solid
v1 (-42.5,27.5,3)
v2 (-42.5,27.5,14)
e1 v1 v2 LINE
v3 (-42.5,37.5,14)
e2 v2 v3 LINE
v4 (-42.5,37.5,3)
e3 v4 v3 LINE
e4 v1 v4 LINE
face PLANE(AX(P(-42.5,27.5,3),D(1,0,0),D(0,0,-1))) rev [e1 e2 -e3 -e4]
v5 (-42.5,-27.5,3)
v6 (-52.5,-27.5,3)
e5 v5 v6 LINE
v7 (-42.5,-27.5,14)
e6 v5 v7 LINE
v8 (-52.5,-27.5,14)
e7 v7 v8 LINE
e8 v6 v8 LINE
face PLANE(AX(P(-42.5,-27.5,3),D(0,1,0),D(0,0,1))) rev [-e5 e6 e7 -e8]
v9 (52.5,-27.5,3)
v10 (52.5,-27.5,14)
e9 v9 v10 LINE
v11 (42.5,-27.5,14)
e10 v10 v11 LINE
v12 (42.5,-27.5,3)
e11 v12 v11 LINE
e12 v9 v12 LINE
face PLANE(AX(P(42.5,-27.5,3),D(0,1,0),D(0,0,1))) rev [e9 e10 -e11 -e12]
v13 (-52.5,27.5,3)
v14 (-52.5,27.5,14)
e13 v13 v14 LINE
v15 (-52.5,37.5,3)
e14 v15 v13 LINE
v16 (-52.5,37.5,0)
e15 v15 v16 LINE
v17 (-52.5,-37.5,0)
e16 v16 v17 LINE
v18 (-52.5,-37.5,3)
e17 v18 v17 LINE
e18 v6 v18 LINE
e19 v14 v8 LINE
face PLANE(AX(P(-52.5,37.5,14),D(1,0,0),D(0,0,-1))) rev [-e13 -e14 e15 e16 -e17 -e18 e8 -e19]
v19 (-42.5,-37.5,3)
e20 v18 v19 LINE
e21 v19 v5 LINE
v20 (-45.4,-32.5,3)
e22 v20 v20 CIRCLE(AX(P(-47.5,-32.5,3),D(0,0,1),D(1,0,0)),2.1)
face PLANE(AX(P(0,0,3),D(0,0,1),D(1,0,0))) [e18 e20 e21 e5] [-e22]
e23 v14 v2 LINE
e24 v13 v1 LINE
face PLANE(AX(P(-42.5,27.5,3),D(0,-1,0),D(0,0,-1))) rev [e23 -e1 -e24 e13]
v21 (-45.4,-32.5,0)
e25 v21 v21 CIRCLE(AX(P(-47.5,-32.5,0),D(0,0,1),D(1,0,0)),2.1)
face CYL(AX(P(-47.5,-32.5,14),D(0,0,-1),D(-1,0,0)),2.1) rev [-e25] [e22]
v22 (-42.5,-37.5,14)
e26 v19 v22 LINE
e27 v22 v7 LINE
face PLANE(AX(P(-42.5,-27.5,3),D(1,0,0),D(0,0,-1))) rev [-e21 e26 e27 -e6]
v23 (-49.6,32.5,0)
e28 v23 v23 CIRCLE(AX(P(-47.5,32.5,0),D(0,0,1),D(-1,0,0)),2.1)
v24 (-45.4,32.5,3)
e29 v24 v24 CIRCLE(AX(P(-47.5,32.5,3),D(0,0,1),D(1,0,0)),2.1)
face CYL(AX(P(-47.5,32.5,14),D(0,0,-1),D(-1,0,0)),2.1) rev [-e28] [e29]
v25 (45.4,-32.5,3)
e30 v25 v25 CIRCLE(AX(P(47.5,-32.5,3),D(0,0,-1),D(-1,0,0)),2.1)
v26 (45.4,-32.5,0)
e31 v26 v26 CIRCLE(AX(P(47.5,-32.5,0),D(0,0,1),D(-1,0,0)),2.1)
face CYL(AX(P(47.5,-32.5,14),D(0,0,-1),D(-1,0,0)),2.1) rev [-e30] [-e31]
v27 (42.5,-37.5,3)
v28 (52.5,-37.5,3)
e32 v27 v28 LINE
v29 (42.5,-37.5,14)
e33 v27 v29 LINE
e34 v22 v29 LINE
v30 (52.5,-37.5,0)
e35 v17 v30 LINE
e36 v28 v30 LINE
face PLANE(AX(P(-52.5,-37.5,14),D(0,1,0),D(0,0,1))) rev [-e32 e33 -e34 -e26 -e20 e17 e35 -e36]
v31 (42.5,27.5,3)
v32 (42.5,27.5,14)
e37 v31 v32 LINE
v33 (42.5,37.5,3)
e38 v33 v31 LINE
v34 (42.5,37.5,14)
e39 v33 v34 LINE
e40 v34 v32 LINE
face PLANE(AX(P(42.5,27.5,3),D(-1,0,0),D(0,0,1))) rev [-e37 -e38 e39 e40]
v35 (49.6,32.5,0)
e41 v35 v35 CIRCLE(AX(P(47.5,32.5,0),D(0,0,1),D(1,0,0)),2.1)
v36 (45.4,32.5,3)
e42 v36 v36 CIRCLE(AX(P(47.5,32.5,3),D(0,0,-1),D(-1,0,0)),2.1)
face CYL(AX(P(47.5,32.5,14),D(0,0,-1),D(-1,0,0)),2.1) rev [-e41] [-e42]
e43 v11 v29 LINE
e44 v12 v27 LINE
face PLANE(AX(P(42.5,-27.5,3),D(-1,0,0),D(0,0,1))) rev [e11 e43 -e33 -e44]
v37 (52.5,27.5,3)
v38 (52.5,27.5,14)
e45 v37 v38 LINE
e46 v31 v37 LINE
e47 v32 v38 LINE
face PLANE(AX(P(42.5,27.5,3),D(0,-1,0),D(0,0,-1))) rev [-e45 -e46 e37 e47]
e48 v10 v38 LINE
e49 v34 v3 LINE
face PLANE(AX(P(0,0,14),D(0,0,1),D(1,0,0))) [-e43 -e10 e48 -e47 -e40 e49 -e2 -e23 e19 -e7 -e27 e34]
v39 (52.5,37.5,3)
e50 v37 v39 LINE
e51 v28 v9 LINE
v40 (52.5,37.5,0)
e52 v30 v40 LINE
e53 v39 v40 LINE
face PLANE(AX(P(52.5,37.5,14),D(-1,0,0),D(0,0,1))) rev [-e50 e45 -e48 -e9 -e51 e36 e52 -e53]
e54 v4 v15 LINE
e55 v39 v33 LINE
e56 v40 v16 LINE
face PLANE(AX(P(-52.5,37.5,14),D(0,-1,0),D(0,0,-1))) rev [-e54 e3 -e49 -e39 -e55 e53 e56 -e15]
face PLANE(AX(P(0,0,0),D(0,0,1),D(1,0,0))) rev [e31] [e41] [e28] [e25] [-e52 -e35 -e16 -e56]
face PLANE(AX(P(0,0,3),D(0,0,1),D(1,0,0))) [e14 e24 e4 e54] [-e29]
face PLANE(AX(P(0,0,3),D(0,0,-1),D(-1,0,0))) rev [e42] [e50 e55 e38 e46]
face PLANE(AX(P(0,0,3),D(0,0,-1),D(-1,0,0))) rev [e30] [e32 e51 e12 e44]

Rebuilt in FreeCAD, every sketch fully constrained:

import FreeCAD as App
import Part
import Sketcher

V = App.Vector
Q = App.Units.Quantity

doc = App.newDocument("Part")
body = doc.addObject("PartDesign::Body", "Body")

# Sketch on XY plane
sketch1 = body.newObject("Sketcher::SketchObject", "Sketch")
sketch1.AttachmentSupport = (doc.getObject("XY_Plane"), [""])
sketch1.MapMode = "FlatFace"
sketch1.addGeometry(Part.LineSegment(V(-52.5, 37.5, 0), V(-52.5, -37.5, 0)), False)
sketch1.addGeometry(Part.LineSegment(V(-52.5, -37.5, 0), V(52.5, -37.5, 0)), False)
sketch1.addGeometry(Part.LineSegment(V(52.5, -37.5, 0), V(52.5, 37.5, 0)), False)
sketch1.addGeometry(Part.LineSegment(V(52.5, 37.5, 0), V(-52.5, 37.5, 0)), False)
sketch1.addGeometry(Part.Circle(V(-47.5, -32.5, 0), V(0, 0, 1), 2.1), False)
sketch1.addGeometry(Part.Circle(V(47.5, -32.5, 0), V(0, 0, 1), 2.1), False)
sketch1.addGeometry(Part.Circle(V(-47.5, 32.5, 0), V(0, 0, 1), 2.1), False)
sketch1.addGeometry(Part.Circle(V(47.5, 32.5, 0), V(0, 0, 1), 2.1), False)
sketch1.addConstraint(Sketcher.Constraint("Coincident", 0, 2, 1, 1))
sketch1.addConstraint(Sketcher.Constraint("Coincident", 1, 2, 2, 1))
sketch1.addConstraint(Sketcher.Constraint("Coincident", 2, 2, 3, 1))
sketch1.addConstraint(Sketcher.Constraint("Coincident", 3, 2, 0, 1))
sketch1.addConstraint(Sketcher.Constraint("Vertical", 0))
sketch1.addConstraint(Sketcher.Constraint("Horizontal", 1))
sketch1.addConstraint(Sketcher.Constraint("Vertical", 2))
sketch1.addConstraint(Sketcher.Constraint("Horizontal", 3))
sketch1.addConstraint(Sketcher.Constraint("Equal", 4, 5))
sketch1.addConstraint(Sketcher.Constraint("Equal", 5, 6))
sketch1.addConstraint(Sketcher.Constraint("Equal", 6, 7))
sketch1.addConstraint(Sketcher.Constraint("Symmetric", 5, 3, 6, 3, -1, 1))
sketch1.addConstraint(Sketcher.Constraint("Symmetric", 4, 3, 7, 3, -1, 1))
sketch1.addConstraint(Sketcher.Constraint("Symmetric", 0, 2, 2, 2, -1, 1))
sketch1.addConstraint(Sketcher.Constraint("Symmetric", 4, 3, 5, 3, -2))
sketch1.addConstraint(Sketcher.Constraint("Diameter", 4, Q("4.2 mm")))
sketch1.addConstraint(Sketcher.Constraint("DistanceX", 1, 1, 1, 2, Q("105 mm")))
sketch1.addConstraint(Sketcher.Constraint("DistanceY", 0, 2, 0, 1, Q("75 mm")))
sketch1.addConstraint(Sketcher.Constraint("DistanceX", 4, 3, 5, 3, Q("95 mm")))
sketch1.addConstraint(Sketcher.Constraint("DistanceY", 4, 3, 6, 3, Q("65 mm")))
pad1 = body.newObject("PartDesign::Pad", "Pad")
pad1.Profile = sketch1
pad1.Length = 14

# Sketch on XY plane
sketch2 = body.newObject("Sketcher::SketchObject", "Sketch001")
sketch2.AttachmentSupport = (doc.getObject("XY_Plane"), [""])
sketch2.MapMode = "FlatFace"
sketch2.AttachmentOffset = App.Placement(V(0, 0, 14), App.Rotation())
sketch2.addGeometry(Part.LineSegment(V(42, 38, 0), V(42, 28, 0)), False)
sketch2.addGeometry(Part.LineSegment(V(42, 28, 0), V(52, 28, 0)), False)
sketch2.addGeometry(Part.LineSegment(V(52, 28, 0), V(52, 38, 0)), False)
sketch2.addGeometry(Part.LineSegment(V(52, 38, 0), V(42, 38, 0)), False)
sketch2.addGeometry(Part.LineSegment(V(-52, 38, 0), V(-52, 28, 0)), False)
sketch2.addGeometry(Part.LineSegment(V(-52, 28, 0), V(-42, 28, 0)), False)
sketch2.addGeometry(Part.LineSegment(V(-42, 28, 0), V(-42, 38, 0)), False)
sketch2.addGeometry(Part.LineSegment(V(-42, 38, 0), V(-52, 38, 0)), False)
sketch2.addGeometry(Part.LineSegment(V(-52, -28, 0), V(-52, -38, 0)), False)
sketch2.addGeometry(Part.LineSegment(V(-52, -38, 0), V(-42, -38, 0)), False)
sketch2.addGeometry(Part.LineSegment(V(-42, -38, 0), V(-42, -28, 0)), False)
sketch2.addGeometry(Part.LineSegment(V(-42, -28, 0), V(-52, -28, 0)), False)
sketch2.addGeometry(Part.LineSegment(V(42, -28, 0), V(42, -38, 0)), False)
sketch2.addGeometry(Part.LineSegment(V(42, -38, 0), V(52, -38, 0)), False)
sketch2.addGeometry(Part.LineSegment(V(52, -38, 0), V(52, -28, 0)), False)
sketch2.addGeometry(Part.LineSegment(V(52, -28, 0), V(42, -28, 0)), False)
sketch2.addConstraint(Sketcher.Constraint("Coincident", 0, 2, 1, 1))
sketch2.addConstraint(Sketcher.Constraint("Coincident", 1, 2, 2, 1))
sketch2.addConstraint(Sketcher.Constraint("Coincident", 2, 2, 3, 1))
sketch2.addConstraint(Sketcher.Constraint("Coincident", 3, 2, 0, 1))
sketch2.addConstraint(Sketcher.Constraint("Coincident", 4, 2, 5, 1))
sketch2.addConstraint(Sketcher.Constraint("Coincident", 5, 2, 6, 1))
sketch2.addConstraint(Sketcher.Constraint("Coincident", 6, 2, 7, 1))
sketch2.addConstraint(Sketcher.Constraint("Coincident", 7, 2, 4, 1))
sketch2.addConstraint(Sketcher.Constraint("Coincident", 8, 2, 9, 1))
sketch2.addConstraint(Sketcher.Constraint("Coincident", 9, 2, 10, 1))
sketch2.addConstraint(Sketcher.Constraint("Coincident", 10, 2, 11, 1))
sketch2.addConstraint(Sketcher.Constraint("Coincident", 11, 2, 8, 1))
sketch2.addConstraint(Sketcher.Constraint("Coincident", 12, 2, 13, 1))
sketch2.addConstraint(Sketcher.Constraint("Coincident", 13, 2, 14, 1))
sketch2.addConstraint(Sketcher.Constraint("Coincident", 14, 2, 15, 1))
sketch2.addConstraint(Sketcher.Constraint("Coincident", 15, 2, 12, 1))
sketch2.addConstraint(Sketcher.Constraint("Vertical", 0))
sketch2.addConstraint(Sketcher.Constraint("Horizontal", 1))
sketch2.addConstraint(Sketcher.Constraint("Vertical", 2))
sketch2.addConstraint(Sketcher.Constraint("Horizontal", 3))
sketch2.addConstraint(Sketcher.Constraint("Vertical", 4))
sketch2.addConstraint(Sketcher.Constraint("Horizontal", 5))
sketch2.addConstraint(Sketcher.Constraint("Vertical", 6))
sketch2.addConstraint(Sketcher.Constraint("Horizontal", 7))
sketch2.addConstraint(Sketcher.Constraint("Vertical", 8))
sketch2.addConstraint(Sketcher.Constraint("Horizontal", 9))
sketch2.addConstraint(Sketcher.Constraint("Vertical", 10))
sketch2.addConstraint(Sketcher.Constraint("Horizontal", 11))
sketch2.addConstraint(Sketcher.Constraint("Vertical", 12))
sketch2.addConstraint(Sketcher.Constraint("Horizontal", 13))
sketch2.addConstraint(Sketcher.Constraint("Vertical", 14))
sketch2.addConstraint(Sketcher.Constraint("Horizontal", 15))
sketch2.addConstraint(Sketcher.Constraint("Symmetric", 2, 2, 8, 2, -1, 1))
sketch2.addConstraint(Sketcher.Constraint("Symmetric", 0, 2, 10, 2, -1, 1))
sketch2.addConstraint(Sketcher.Constraint("Symmetric", 6, 2, 12, 2, -1, 1))
sketch2.addConstraint(Sketcher.Constraint("Symmetric", 4, 2, 14, 2, -1, 1))
sketch2.addConstraint(Sketcher.Constraint("Symmetric", 1, 2, 4, 2, -2))
sketch2.addConstraint(Sketcher.Constraint("Symmetric", 3, 2, 6, 2, -2))
sketch2.addConstraint(Sketcher.Constraint("Equal", 15, 0))
sketch2.addConstraint(Sketcher.Constraint("DistanceX", 1, 1, 1, 2, Q("10 mm")))
sketch2.addConstraint(Sketcher.Constraint("DistanceX", 4, 2, 0, 2, Q("95 mm")))
sketch2.addConstraint(Sketcher.Constraint("DistanceY", 8, 2, 4, 2, Q("65 mm")))
pocket1 = body.newObject("PartDesign::Pocket", "Pocket")
pocket1.Profile = sketch2
pocket1.Length = 11

doc.recompute()
